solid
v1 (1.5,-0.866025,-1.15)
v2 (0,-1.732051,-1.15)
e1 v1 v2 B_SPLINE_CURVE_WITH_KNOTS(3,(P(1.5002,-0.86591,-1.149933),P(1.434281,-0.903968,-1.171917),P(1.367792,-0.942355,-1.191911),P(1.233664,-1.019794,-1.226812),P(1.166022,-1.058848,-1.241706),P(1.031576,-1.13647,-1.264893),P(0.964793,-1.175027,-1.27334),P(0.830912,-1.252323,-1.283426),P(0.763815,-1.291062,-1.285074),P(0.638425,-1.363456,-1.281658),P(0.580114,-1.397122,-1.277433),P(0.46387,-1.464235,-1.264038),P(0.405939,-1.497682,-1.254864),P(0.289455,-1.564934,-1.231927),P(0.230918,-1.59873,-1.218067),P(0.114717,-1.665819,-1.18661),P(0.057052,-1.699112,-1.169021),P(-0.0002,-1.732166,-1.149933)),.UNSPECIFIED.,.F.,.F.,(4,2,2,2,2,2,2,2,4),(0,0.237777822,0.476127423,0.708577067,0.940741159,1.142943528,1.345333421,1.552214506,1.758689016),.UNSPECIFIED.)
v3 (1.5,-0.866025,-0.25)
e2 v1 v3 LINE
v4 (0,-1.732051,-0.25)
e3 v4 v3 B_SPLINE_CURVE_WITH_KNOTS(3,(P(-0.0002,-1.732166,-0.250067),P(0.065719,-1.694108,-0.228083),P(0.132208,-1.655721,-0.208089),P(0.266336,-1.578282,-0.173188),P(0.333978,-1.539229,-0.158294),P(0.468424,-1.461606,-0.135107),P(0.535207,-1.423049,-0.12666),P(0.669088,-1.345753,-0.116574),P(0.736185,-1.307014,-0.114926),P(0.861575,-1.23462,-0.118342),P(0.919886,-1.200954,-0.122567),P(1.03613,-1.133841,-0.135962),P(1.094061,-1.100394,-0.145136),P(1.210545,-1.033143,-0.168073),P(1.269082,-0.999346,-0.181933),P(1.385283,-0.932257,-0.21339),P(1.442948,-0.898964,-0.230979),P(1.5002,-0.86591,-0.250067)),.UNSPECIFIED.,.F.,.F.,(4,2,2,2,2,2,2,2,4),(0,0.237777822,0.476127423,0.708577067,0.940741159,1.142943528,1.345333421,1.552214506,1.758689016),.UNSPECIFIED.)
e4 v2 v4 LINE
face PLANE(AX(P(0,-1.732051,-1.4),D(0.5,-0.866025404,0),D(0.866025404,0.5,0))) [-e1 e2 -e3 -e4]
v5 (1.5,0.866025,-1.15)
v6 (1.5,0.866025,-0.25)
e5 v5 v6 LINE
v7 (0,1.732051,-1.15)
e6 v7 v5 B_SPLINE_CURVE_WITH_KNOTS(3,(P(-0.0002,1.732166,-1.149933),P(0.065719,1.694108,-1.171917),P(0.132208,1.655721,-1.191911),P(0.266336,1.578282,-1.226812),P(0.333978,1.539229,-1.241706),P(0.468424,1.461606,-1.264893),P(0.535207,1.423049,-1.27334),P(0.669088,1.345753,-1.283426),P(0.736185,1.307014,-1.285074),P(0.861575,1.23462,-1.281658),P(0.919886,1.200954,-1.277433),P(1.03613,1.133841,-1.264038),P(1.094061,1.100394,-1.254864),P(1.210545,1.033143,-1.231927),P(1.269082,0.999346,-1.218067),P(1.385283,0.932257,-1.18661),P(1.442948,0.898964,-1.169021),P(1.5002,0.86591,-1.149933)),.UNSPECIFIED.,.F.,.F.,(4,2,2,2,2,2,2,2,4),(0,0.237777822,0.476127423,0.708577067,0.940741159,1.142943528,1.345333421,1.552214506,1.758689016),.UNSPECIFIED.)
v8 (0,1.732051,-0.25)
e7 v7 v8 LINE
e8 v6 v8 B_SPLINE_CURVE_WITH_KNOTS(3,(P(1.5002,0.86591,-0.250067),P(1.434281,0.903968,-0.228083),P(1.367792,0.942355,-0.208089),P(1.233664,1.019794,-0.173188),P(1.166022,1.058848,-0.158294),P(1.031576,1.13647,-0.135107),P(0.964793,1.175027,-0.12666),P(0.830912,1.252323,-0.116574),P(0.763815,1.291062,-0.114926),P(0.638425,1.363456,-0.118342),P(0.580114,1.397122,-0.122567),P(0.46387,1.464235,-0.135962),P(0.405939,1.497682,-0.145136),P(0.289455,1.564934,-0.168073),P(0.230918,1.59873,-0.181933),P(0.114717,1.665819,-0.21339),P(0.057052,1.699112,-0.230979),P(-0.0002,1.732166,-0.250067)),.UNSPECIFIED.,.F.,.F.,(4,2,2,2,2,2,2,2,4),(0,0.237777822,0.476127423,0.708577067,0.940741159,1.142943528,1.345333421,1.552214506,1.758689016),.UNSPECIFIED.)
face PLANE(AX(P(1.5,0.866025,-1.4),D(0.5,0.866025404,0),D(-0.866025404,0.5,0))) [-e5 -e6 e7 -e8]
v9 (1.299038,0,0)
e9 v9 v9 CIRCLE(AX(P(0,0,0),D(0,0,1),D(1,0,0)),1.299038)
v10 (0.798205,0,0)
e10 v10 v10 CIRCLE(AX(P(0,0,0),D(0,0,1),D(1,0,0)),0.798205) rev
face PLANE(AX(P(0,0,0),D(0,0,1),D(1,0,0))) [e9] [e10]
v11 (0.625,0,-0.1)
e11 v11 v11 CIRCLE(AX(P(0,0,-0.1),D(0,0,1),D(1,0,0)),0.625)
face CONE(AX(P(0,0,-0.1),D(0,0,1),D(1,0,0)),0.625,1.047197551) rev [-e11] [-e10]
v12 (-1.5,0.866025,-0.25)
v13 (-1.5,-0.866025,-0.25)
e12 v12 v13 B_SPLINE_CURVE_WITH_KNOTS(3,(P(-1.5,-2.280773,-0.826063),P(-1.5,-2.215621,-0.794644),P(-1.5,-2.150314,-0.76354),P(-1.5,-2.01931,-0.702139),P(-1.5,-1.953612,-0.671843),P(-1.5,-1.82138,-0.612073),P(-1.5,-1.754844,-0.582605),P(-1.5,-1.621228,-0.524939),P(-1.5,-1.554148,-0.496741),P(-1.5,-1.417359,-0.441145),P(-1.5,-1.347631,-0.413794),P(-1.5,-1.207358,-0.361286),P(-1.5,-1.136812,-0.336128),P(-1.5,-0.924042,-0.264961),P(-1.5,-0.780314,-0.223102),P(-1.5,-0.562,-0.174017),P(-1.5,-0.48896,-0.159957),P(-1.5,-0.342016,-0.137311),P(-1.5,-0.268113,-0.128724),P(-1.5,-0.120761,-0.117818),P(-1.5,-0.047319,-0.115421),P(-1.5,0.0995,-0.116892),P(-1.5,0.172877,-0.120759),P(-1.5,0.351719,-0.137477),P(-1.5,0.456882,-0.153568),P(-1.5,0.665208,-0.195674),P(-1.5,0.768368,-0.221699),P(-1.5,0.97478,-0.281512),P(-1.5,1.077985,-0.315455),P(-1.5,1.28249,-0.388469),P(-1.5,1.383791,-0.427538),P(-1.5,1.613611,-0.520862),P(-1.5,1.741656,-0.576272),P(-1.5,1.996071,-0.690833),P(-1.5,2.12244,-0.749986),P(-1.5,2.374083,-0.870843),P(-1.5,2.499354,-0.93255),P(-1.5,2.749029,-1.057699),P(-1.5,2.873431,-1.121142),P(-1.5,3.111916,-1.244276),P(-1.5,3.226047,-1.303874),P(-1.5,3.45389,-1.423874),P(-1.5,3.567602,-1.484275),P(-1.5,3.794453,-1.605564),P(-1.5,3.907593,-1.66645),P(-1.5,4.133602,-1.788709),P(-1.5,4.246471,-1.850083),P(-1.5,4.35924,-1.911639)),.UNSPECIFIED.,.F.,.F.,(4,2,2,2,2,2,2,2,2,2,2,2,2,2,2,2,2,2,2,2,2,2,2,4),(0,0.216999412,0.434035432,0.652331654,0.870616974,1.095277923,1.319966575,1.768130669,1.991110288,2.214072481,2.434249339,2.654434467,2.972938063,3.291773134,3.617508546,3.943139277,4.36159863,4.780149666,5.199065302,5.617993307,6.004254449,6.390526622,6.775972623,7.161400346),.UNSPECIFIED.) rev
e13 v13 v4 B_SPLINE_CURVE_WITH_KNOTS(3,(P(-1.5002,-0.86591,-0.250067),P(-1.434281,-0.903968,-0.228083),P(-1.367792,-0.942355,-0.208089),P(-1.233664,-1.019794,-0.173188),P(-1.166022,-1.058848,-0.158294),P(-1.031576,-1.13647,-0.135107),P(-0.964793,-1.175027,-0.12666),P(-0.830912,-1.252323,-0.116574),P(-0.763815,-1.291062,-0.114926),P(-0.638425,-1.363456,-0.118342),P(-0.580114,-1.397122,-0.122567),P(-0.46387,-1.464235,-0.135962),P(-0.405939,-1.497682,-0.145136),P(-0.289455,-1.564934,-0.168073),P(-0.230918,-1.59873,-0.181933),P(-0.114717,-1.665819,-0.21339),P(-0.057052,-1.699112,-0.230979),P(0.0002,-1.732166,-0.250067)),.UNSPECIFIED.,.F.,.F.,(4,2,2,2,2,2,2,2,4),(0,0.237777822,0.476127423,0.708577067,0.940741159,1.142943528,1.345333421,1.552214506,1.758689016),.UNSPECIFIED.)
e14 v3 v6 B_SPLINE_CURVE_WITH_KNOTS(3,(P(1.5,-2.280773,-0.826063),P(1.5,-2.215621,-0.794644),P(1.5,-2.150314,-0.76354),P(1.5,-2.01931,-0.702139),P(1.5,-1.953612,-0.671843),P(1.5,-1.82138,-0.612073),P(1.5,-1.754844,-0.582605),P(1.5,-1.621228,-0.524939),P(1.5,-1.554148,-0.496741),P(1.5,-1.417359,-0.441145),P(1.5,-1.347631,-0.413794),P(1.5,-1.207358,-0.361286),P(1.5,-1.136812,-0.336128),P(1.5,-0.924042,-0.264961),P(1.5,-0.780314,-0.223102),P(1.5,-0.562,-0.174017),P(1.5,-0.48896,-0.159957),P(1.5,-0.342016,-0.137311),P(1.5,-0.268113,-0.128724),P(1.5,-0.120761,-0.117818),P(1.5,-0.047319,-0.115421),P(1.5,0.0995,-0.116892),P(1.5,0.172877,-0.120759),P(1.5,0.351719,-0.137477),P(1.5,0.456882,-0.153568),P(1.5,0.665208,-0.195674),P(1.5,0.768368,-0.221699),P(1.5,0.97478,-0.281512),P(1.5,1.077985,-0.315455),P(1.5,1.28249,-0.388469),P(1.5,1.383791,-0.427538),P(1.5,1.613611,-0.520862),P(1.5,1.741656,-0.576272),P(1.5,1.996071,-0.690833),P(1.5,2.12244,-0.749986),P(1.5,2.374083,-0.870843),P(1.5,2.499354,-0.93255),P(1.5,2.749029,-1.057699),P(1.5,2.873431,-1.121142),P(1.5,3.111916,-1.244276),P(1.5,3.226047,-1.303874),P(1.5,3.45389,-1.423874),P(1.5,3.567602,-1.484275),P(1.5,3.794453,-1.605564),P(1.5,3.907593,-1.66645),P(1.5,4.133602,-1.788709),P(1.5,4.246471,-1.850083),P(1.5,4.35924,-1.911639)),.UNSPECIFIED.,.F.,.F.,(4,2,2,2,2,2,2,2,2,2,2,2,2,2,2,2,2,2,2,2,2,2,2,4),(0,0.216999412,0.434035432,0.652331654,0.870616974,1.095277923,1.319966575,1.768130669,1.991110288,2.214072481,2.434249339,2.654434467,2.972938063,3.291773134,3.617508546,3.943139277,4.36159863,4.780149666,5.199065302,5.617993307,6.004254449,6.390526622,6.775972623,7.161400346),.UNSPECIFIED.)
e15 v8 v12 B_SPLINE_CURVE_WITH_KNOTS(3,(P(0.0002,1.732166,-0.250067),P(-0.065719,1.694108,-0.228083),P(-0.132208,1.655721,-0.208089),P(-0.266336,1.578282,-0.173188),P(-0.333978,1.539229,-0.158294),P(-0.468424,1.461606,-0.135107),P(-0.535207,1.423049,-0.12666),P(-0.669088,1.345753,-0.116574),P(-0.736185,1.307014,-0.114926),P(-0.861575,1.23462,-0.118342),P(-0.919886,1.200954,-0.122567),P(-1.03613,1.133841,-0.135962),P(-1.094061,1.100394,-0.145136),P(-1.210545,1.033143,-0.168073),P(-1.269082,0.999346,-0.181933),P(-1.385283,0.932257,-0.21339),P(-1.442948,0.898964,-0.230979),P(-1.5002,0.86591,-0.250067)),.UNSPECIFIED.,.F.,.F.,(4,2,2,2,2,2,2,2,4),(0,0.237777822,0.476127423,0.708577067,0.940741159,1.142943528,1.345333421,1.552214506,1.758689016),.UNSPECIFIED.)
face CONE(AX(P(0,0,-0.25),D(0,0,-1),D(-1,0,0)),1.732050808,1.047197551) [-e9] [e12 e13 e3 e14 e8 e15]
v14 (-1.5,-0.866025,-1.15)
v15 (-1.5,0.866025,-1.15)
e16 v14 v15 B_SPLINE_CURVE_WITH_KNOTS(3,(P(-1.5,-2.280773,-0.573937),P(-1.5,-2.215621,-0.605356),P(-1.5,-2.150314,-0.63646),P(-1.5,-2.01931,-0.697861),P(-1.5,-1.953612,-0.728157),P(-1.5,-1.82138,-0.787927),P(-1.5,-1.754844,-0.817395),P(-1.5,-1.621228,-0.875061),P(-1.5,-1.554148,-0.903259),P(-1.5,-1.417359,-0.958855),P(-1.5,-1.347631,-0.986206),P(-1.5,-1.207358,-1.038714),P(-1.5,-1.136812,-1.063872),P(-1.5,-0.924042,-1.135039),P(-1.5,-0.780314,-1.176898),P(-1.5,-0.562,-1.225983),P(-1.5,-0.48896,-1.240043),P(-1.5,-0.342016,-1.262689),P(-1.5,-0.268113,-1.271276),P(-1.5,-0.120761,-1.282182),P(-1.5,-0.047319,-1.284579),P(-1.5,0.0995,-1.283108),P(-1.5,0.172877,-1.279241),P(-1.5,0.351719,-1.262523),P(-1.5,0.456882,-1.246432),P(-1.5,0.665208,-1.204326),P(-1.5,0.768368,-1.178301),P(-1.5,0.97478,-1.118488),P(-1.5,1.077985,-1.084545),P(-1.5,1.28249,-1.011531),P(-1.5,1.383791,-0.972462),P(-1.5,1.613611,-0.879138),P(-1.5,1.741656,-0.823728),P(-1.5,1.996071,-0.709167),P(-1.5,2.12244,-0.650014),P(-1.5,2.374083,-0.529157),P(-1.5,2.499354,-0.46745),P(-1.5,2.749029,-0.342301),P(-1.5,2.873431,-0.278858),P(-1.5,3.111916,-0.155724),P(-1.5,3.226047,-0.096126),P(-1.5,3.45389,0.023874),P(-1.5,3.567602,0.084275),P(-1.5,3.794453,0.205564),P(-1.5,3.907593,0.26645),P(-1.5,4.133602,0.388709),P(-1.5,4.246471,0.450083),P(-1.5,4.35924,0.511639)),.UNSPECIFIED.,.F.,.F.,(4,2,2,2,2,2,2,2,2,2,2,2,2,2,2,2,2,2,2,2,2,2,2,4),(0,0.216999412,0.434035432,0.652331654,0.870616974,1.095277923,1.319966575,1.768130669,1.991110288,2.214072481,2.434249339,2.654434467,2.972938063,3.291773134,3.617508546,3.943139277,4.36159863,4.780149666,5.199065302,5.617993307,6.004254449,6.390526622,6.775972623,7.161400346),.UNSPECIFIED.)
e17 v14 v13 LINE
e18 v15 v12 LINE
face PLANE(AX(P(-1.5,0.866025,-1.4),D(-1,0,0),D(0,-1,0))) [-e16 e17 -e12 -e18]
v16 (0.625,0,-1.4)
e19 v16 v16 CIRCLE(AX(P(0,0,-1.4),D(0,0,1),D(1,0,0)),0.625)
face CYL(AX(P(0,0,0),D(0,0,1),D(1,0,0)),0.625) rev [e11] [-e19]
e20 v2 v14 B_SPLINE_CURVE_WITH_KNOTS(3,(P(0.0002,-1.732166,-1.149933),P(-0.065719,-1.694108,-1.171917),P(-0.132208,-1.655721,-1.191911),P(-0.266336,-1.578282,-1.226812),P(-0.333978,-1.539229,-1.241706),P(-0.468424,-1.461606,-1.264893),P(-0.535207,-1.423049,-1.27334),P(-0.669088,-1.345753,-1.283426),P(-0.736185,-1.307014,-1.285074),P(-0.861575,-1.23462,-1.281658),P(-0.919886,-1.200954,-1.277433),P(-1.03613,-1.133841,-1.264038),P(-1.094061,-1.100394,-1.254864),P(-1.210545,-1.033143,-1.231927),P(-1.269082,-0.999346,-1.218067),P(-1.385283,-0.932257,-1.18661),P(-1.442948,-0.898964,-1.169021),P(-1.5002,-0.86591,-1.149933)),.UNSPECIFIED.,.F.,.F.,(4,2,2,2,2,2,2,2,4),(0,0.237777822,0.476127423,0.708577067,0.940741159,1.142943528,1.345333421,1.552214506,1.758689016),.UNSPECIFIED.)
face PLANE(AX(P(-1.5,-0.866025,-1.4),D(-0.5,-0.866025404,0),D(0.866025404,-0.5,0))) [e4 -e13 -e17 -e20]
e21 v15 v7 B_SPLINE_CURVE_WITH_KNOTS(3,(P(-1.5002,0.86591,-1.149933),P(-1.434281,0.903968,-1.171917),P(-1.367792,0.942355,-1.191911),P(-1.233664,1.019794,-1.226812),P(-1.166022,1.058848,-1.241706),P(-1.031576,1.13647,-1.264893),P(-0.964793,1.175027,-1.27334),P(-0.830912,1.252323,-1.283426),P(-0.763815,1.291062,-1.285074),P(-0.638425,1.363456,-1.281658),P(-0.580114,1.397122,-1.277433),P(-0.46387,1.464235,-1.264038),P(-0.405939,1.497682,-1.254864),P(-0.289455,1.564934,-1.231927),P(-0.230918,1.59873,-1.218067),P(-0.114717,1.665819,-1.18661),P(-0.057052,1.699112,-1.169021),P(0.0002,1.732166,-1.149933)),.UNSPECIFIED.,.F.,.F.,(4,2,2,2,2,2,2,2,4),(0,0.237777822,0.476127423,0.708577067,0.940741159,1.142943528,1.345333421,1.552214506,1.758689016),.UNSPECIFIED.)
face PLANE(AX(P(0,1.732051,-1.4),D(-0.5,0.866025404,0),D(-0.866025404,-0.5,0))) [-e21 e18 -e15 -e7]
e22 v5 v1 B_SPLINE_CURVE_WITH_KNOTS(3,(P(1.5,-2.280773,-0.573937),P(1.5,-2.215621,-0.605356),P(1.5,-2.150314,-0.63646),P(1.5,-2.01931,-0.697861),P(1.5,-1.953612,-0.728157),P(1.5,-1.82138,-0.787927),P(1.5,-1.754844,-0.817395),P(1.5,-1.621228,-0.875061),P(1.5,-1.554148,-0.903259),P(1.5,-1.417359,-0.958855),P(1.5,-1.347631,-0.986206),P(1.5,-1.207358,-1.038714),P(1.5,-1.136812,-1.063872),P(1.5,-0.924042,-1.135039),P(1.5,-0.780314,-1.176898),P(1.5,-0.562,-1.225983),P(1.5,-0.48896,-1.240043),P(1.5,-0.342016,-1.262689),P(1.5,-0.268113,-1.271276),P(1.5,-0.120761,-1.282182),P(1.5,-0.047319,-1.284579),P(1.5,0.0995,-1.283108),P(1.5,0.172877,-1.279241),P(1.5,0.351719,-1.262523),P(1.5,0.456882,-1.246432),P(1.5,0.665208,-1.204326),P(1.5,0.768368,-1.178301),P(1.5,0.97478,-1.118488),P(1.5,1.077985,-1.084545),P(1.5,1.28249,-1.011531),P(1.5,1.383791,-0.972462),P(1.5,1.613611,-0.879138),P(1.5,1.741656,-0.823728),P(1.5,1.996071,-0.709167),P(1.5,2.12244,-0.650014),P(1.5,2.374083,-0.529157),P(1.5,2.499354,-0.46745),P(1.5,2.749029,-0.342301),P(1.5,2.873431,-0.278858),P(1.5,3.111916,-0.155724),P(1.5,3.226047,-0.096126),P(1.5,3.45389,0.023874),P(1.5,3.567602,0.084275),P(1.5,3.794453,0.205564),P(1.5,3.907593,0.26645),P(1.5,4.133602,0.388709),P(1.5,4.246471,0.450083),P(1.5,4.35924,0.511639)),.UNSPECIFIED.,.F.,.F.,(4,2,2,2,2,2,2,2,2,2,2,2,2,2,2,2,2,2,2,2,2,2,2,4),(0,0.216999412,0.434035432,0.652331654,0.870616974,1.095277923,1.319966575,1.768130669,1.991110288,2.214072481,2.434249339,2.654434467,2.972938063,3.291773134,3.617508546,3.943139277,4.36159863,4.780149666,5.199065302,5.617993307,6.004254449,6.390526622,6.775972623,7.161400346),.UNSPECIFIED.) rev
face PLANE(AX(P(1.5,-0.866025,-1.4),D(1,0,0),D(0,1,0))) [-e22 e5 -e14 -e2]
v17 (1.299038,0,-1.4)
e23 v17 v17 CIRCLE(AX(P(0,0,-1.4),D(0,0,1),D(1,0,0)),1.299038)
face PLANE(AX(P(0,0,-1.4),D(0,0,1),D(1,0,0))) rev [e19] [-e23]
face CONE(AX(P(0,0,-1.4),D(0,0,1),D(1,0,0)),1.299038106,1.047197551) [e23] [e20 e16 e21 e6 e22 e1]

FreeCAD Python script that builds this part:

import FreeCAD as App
import Part
import Sketcher

V = App.Vector
Q = App.Units.Quantity


def edges_at(feature, points):
    """Names of the edges that pass closest to the given points."""
    edges = feature.Shape.Edges
    near = lambda p: min(range(len(edges)), key=lambda i: edges[i].distToShape(Part.Vertex(*p))[0])
    return sorted({f"Edge{near(p) + 1}" for p in points})


def add_polygon(sketch, points):
    """Adds a closed chain of lines whose ends are joined by coincident constraints."""
    first, n = sketch.GeometryCount, len(points)
    for a, b in zip(points, points[1:] + points[:1]):
        sketch.addGeometry(Part.LineSegment(App.Vector(*a, 0), App.Vector(*b, 0)), False)
    for i in range(n):
        sketch.addConstraint(Sketcher.Constraint("Coincident", first + i, 2, first + (i + 1) % n, 1))

doc = App.newDocument("Part")
body = doc.addObject("PartDesign::Body", "Body")

# Sketch on XY plane
sketch1 = doc.addObject("Sketcher::SketchObject", "Sketch")
body.addObject(sketch1)
sketch1.AttachmentSupport = (doc.XY_Plane, [""])
sketch1.MapMode = "FlatFace"
add_polygon(sketch1, [(0, 1.7), (-1.5, 0.9), (-1.5, -0.9), (0, -1.7), (1.5, -0.9), (1.5, 0.9)])  # lines 0-5
sketch1.addConstraint([
    Sketcher.Constraint("Vertical", 1),
    Sketcher.Constraint("Vertical", 4),
    Sketcher.Constraint("Symmetric", 0, 2, 3, 2, -1, 1),
    Sketcher.Constraint("Symmetric", 2, 2, 5, 2, -1, 1),
    Sketcher.Constraint("PointOnObject", 2, 2, -2),
    Sketcher.Constraint("Parallel", 2, 5),
    Sketcher.Constraint("Horizontal", 1, 2, 3, 2),
    Sketcher.Constraint("Angle", 0, Q("-150 deg")),
    Sketcher.Constraint("DistanceX", 1, 2, 3, 2, 3.0),
    Sketcher.Constraint("DistanceY", 1, 2, 1, 1, 1.732051),
])
pad1 = doc.addObject("PartDesign::Pad", "Pad")
body.addObject(pad1)
pad1.Profile = sketch1
pad1.Length = 1.4
pad1.Reversed = True

# Sketch on YZ plane
sketch2 = doc.addObject("Sketcher::SketchObject", "Sketch001")
body.addObject(sketch2)
sketch2.AttachmentSupport = (doc.YZ_Plane, [""])
sketch2.MapMode = "FlatFace"
add_polygon(sketch2, [(-1.73, -0.25), (-1.3, 0), (-1.73, 0)])  # lines 0-2
add_polygon(sketch2, [(-1.73, -1.4), (-1.3, -1.4), (-1.73, -1.15)])  # lines 3-5
sketch2.addConstraint([
    Sketcher.Constraint("Horizontal", 1),
    Sketcher.Constraint("Vertical", 2),
    Sketcher.Constraint("Horizontal", 3),
    Sketcher.Constraint("Vertical", 5),
    Sketcher.Constraint("PointOnObject", 0, 2, -1),
    Sketcher.Constraint("Vertical", 0, 2, 3, 2),
    Sketcher.Constraint("Vertical", 2, 2, 4, 2),
    Sketcher.Constraint("Equal", 2, 5),
    Sketcher.Constraint("Angle", 0, Q("30 deg")),
    Sketcher.Constraint("Distance", 0, 0.5),
    Sketcher.Constraint("DistanceY", 3, 2, -1, 1, 1.4),
    Sketcher.Constraint("DistanceX", 0, 2, -1, 1, 1.299038),
])
groove = doc.addObject("PartDesign::Groove", "Groove")
body.addObject(groove)
groove.Profile = sketch2
groove.ReferenceAxis = (sketch2, ["V_Axis"])
groove.Angle = 360

# Sketch on XY plane
sketch3 = doc.addObject("Sketcher::SketchObject", "Sketch002")
body.addObject(sketch3)
sketch3.AttachmentSupport = (doc.XY_Plane, [""])
sketch3.MapMode = "FlatFace"
sketch3.addGeometry(Part.Circle(V(0, 0, 0), V(0, 0, 1), 0.6), False)
sketch3.addConstraint([
    Sketcher.Constraint("Coincident", 0, 3, -1, 1),
    Sketcher.Constraint("Diameter", 0, 1.25),
])
doc.recompute()
hole = doc.addObject("PartDesign::Hole", "Hole")
body.addObject(hole)
hole.Profile = sketch3
hole.ThreadType = "None"
hole.Diameter = 1.25
hole.DepthType = "ThroughAll"
doc.recompute()

chamfer = doc.addObject("PartDesign::Chamfer", "Chamfer")
body.addObject(chamfer)
chamfer.Base = (hole, edges_at(hole, [(0.625, 0, 0)]))
chamfer.ChamferType = "Two distances"
chamfer.Size = 0.1
chamfer.Size2 = 0.173205
chamfer.FlipDirection = True

doc.recompute()
